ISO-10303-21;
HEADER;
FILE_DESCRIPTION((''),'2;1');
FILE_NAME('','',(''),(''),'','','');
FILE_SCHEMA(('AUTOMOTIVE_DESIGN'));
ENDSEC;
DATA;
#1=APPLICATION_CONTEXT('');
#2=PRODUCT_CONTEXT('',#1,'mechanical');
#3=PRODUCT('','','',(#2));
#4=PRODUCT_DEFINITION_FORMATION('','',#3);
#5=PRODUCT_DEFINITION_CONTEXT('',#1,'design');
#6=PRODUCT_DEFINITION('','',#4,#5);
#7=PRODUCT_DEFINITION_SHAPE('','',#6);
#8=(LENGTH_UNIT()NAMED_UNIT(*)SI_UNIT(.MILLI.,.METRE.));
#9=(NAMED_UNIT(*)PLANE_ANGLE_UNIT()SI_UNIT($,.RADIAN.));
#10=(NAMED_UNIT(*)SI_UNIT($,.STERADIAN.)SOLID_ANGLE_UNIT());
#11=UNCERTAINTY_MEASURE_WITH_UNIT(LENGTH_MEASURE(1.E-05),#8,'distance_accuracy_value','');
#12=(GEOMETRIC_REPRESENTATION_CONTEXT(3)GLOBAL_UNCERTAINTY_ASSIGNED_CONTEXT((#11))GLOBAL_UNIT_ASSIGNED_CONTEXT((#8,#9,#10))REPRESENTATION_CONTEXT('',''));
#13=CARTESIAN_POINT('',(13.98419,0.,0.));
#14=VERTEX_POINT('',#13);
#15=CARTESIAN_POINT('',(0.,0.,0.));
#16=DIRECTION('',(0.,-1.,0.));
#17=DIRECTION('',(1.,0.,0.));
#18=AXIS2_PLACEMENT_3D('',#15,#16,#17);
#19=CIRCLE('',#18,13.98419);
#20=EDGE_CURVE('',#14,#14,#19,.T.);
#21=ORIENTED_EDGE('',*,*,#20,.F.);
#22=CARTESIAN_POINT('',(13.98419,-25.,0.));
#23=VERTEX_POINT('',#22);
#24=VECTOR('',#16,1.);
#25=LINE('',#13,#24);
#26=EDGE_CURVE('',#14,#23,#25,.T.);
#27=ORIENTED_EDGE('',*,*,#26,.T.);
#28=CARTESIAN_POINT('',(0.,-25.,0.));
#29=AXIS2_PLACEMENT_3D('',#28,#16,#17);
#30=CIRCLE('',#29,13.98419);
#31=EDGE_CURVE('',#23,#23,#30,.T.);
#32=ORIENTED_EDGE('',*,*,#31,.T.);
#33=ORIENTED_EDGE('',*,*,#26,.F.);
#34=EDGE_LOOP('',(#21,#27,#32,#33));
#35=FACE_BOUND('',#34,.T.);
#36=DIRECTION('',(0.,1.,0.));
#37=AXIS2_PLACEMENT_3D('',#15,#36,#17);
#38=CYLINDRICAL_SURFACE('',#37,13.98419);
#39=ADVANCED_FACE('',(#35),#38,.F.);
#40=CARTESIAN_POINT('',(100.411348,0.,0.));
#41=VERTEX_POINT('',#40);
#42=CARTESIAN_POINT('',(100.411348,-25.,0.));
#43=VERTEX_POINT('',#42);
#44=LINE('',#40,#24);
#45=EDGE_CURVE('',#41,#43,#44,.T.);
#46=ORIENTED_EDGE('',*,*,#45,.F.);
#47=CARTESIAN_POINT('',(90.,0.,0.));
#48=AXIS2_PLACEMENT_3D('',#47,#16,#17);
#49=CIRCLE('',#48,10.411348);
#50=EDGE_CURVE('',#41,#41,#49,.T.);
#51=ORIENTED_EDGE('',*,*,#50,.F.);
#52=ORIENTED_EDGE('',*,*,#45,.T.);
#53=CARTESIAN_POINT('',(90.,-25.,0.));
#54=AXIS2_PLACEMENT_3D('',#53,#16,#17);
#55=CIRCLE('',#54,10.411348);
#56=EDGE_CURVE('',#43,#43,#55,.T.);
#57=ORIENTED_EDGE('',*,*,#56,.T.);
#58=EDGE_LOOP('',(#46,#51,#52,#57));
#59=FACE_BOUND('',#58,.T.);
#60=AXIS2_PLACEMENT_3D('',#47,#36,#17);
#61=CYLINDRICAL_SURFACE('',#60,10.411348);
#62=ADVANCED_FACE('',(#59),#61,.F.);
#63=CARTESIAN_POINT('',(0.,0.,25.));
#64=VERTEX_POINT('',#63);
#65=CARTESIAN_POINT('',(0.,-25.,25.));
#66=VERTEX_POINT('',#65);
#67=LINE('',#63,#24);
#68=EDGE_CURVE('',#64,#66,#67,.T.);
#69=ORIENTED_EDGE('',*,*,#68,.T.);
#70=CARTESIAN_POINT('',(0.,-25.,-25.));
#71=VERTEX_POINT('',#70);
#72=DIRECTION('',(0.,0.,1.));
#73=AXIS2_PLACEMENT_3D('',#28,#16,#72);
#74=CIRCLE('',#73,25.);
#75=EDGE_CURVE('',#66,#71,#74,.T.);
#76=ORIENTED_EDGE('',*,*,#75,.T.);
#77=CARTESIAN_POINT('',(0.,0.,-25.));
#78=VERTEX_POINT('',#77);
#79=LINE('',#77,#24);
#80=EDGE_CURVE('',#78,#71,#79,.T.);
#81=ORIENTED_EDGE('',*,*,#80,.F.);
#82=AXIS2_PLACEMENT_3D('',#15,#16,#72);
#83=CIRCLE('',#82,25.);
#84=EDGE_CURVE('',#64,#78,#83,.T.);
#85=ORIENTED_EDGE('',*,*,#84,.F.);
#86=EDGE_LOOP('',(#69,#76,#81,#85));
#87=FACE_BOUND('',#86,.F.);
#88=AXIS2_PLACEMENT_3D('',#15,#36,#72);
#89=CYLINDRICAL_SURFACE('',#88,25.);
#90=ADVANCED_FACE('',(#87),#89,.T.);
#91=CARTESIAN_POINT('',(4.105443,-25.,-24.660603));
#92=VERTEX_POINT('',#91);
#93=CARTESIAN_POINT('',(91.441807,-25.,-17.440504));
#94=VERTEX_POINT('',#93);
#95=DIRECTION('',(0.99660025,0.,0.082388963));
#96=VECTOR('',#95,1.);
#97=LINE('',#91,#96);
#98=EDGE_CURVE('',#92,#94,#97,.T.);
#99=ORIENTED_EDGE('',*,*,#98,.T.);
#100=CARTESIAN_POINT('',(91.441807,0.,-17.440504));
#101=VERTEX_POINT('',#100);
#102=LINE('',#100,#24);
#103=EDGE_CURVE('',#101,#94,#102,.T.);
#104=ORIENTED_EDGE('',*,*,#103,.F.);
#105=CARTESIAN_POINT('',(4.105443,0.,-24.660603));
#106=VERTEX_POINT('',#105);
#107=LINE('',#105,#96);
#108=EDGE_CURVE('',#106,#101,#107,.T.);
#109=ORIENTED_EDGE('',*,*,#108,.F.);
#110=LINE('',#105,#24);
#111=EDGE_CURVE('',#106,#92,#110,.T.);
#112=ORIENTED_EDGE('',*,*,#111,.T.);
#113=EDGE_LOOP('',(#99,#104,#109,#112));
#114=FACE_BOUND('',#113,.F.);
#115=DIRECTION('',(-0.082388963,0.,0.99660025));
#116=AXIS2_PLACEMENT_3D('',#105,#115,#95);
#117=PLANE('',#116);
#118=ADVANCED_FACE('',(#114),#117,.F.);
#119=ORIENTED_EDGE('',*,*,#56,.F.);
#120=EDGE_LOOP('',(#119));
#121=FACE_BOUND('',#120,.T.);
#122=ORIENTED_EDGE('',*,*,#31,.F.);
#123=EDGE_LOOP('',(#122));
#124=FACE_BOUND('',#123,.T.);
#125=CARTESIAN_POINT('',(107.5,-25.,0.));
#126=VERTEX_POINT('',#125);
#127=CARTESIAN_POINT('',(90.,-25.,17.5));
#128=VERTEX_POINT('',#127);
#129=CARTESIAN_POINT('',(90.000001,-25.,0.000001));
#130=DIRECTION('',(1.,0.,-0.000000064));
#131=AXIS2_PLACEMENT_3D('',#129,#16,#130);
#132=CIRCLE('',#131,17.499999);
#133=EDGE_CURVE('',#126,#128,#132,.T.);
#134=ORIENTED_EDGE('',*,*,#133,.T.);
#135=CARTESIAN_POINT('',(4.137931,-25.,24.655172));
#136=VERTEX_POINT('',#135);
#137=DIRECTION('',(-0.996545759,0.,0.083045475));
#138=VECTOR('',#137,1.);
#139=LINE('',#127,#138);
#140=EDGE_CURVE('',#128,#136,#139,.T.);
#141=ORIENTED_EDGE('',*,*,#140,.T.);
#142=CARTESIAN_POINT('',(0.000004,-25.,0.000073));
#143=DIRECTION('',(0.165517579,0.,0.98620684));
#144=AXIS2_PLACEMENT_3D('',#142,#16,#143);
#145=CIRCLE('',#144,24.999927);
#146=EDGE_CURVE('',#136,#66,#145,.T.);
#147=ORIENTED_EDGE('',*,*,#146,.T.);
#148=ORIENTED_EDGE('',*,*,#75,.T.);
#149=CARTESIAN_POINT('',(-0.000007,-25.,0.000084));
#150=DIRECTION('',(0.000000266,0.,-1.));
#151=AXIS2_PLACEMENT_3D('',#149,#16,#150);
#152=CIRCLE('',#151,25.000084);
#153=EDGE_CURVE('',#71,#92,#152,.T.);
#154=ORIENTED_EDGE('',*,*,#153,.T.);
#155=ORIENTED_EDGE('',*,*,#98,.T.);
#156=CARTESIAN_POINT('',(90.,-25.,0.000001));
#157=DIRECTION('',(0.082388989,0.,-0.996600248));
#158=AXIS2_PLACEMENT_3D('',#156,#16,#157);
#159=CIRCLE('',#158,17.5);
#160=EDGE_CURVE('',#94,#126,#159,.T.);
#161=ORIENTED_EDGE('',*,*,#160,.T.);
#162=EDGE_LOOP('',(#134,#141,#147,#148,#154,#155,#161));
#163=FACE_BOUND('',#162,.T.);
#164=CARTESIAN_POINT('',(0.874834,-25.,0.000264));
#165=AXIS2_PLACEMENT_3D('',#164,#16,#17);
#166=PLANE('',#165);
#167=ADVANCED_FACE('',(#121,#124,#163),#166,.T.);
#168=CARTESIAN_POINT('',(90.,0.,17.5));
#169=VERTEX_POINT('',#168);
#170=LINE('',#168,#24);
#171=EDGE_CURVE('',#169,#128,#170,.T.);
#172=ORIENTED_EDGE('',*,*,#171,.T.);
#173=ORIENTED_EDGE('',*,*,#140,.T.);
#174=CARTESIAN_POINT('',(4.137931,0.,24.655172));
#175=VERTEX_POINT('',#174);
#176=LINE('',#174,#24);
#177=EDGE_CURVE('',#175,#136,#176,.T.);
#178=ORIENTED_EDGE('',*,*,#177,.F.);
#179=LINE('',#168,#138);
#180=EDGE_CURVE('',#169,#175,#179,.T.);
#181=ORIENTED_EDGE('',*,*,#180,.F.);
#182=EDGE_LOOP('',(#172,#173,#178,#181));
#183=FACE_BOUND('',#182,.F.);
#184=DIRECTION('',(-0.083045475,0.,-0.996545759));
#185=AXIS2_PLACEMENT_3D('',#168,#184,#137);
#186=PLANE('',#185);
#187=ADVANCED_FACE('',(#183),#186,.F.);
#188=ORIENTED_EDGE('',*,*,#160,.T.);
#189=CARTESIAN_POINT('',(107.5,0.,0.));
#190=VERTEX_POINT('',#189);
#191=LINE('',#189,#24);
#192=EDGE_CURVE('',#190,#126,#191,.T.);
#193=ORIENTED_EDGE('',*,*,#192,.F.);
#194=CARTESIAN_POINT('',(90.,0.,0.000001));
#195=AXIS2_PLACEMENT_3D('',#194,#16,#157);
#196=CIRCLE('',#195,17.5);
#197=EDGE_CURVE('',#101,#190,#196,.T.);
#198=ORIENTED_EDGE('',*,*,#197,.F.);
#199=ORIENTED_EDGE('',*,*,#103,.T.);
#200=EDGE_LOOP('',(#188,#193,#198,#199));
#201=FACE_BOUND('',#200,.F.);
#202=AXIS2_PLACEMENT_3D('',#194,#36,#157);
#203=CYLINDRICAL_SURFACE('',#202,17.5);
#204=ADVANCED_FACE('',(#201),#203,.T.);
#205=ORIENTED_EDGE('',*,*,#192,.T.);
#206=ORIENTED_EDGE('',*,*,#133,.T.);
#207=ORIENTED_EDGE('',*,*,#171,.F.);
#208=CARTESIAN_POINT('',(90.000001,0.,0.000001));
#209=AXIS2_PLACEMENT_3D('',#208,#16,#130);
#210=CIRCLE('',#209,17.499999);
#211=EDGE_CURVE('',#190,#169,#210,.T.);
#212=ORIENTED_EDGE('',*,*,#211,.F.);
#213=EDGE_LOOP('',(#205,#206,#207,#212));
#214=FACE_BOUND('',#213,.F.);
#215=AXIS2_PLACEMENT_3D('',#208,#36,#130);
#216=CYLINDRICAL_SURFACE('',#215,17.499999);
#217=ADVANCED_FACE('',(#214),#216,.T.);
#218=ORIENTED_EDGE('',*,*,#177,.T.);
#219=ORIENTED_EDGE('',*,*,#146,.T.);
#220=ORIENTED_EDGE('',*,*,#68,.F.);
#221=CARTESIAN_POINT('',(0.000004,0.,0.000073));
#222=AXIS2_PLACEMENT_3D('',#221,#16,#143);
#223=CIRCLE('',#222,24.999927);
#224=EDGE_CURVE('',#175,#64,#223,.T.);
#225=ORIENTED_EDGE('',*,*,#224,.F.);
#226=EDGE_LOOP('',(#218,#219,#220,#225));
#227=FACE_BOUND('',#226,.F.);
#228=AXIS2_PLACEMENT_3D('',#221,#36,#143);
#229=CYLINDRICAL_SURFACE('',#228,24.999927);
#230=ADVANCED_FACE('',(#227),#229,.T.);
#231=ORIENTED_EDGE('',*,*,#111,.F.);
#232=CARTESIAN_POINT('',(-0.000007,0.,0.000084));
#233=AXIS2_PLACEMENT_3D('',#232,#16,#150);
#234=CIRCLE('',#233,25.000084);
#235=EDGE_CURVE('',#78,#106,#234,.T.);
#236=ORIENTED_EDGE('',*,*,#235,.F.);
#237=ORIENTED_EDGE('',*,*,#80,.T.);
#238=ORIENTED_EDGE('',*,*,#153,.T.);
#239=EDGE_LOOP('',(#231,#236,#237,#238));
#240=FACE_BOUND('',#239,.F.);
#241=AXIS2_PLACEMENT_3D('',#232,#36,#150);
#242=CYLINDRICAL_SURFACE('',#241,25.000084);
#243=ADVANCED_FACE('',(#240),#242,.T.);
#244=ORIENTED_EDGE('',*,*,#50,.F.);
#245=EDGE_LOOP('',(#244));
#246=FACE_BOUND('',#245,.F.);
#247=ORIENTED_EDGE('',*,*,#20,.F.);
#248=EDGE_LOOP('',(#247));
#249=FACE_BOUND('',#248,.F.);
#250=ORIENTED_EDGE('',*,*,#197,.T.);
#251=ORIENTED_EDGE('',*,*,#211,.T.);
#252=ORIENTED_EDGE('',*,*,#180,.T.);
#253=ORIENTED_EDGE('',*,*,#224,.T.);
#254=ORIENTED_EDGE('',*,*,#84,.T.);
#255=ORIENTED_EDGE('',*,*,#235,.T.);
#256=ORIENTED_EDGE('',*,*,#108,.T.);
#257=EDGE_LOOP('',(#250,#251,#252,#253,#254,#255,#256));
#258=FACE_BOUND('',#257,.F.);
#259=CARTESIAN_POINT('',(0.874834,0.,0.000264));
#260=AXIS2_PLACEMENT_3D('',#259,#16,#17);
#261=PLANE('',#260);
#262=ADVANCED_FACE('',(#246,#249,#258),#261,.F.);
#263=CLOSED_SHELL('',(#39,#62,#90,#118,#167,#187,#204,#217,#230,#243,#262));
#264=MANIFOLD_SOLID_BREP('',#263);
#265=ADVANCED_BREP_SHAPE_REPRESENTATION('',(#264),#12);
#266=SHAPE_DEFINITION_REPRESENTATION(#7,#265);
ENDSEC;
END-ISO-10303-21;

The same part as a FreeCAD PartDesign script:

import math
import FreeCAD as App
import Part
import Sketcher

V = App.Vector
Q = App.Units.Quantity

doc = App.newDocument("Part")
body = doc.addObject("PartDesign::Body", "Body")

sketch1 = body.newObject("Sketcher::SketchObject", "Sketch")
sketch1.AttachmentSupport = (doc.getObject("XZ_Plane"), [""])
sketch1.MapMode = "FlatFace"
sketch1.addGeometry([
    Part.ArcOfCircle(Part.Circle(V(0.000004, 0.000073, 0), V(0, 0, 1), 24.999927), math.radians(80.472697), math.radians(90.000008)),
    Part.ArcOfCircle(Part.Circle(V(0, 0, 0), V(0, 0, 1), 25), math.radians(90), math.radians(270)),
    Part.ArcOfCircle(Part.Circle(V(-0.000007, 0.000084, 0), V(0, 0, 1), 25.000084), math.radians(-89.999985), math.radians(-80.548223)),
    Part.LineSegment(V(4.105443, -24.660603, 0), V(91.441807, -17.440504, 0)),
    Part.ArcOfCircle(Part.Circle(V(90, 0.000001, 0), V(0, 0, 1), 17.5), math.radians(-85.274102), math.radians(-0.000002)),
    Part.ArcOfCircle(Part.Circle(V(90.000001, 0.000001, 0), V(0, 0, 1), 17.499999), math.radians(-0.000004), math.radians(90.000004)),
    Part.LineSegment(V(90, 17.5, 0), V(4.137931, 24.655172, 0)),
    Part.Circle(V(0, 0, 0), V(0, 0, 1), 13.98419),
    Part.Circle(V(90, 0, 0), V(0, 0, 1), 10.411348),
], False)
sketch1.addConstraint([
    Sketcher.Constraint("Tangent", 0, 2, 1, 1),
    Sketcher.Constraint("Tangent", 1, 2, 2, 1),
    Sketcher.Constraint("Coincident", 2, 2, 3, 1),
    Sketcher.Constraint("Tangent", 3, 2, 4, 1),
    Sketcher.Constraint("Tangent", 4, 2, 5, 1),
    Sketcher.Constraint("Coincident", 5, 2, 6, 1),
    Sketcher.Constraint("Coincident", 6, 2, 0, 1),
    Sketcher.Constraint("Coincident", 1, 3, -1, 1),
    Sketcher.Constraint("Coincident", 7, 3, -1, 1),
    Sketcher.Constraint("Coincident", 8, 3, 4, 3),
    Sketcher.Constraint("Equal", 4, 5),
    Sketcher.Constraint("PointOnObject", 4, 3, -1),
    Sketcher.Constraint("PointOnObject", 0, 2, -2),
    Sketcher.Constraint("PointOnObject", 1, 2, -2),
    Sketcher.Constraint("PointOnObject", 4, 2, -1),
    Sketcher.Constraint("Vertical", 8, 3, 5, 2),
    Sketcher.Constraint("Radius", 1, Q("25 mm")),
    Sketcher.Constraint("Radius", 4, Q("17.5 mm")),
    Sketcher.Constraint("DistanceX", -1, 1, 4, 3, Q("90 mm")),
    Sketcher.Constraint("Diameter", 7, Q("27.96838 mm")),
    Sketcher.Constraint("Diameter", 8, Q("20.822696 mm")),
    Sketcher.Constraint("Radius", 0, Q("24.999927 mm")),
    Sketcher.Constraint("Radius", 2, Q("25.000084 mm")),
    Sketcher.Constraint("Distance", 3, Q("87.634299 mm")),
    Sketcher.Constraint("DistanceY", 0, 3, 6, 2, Q("24.655099 mm")),
])
pad1 = body.newObject("PartDesign::Pad", "Pad")
pad1.Profile = sketch1
pad1.Length = 25

doc.recompute()
